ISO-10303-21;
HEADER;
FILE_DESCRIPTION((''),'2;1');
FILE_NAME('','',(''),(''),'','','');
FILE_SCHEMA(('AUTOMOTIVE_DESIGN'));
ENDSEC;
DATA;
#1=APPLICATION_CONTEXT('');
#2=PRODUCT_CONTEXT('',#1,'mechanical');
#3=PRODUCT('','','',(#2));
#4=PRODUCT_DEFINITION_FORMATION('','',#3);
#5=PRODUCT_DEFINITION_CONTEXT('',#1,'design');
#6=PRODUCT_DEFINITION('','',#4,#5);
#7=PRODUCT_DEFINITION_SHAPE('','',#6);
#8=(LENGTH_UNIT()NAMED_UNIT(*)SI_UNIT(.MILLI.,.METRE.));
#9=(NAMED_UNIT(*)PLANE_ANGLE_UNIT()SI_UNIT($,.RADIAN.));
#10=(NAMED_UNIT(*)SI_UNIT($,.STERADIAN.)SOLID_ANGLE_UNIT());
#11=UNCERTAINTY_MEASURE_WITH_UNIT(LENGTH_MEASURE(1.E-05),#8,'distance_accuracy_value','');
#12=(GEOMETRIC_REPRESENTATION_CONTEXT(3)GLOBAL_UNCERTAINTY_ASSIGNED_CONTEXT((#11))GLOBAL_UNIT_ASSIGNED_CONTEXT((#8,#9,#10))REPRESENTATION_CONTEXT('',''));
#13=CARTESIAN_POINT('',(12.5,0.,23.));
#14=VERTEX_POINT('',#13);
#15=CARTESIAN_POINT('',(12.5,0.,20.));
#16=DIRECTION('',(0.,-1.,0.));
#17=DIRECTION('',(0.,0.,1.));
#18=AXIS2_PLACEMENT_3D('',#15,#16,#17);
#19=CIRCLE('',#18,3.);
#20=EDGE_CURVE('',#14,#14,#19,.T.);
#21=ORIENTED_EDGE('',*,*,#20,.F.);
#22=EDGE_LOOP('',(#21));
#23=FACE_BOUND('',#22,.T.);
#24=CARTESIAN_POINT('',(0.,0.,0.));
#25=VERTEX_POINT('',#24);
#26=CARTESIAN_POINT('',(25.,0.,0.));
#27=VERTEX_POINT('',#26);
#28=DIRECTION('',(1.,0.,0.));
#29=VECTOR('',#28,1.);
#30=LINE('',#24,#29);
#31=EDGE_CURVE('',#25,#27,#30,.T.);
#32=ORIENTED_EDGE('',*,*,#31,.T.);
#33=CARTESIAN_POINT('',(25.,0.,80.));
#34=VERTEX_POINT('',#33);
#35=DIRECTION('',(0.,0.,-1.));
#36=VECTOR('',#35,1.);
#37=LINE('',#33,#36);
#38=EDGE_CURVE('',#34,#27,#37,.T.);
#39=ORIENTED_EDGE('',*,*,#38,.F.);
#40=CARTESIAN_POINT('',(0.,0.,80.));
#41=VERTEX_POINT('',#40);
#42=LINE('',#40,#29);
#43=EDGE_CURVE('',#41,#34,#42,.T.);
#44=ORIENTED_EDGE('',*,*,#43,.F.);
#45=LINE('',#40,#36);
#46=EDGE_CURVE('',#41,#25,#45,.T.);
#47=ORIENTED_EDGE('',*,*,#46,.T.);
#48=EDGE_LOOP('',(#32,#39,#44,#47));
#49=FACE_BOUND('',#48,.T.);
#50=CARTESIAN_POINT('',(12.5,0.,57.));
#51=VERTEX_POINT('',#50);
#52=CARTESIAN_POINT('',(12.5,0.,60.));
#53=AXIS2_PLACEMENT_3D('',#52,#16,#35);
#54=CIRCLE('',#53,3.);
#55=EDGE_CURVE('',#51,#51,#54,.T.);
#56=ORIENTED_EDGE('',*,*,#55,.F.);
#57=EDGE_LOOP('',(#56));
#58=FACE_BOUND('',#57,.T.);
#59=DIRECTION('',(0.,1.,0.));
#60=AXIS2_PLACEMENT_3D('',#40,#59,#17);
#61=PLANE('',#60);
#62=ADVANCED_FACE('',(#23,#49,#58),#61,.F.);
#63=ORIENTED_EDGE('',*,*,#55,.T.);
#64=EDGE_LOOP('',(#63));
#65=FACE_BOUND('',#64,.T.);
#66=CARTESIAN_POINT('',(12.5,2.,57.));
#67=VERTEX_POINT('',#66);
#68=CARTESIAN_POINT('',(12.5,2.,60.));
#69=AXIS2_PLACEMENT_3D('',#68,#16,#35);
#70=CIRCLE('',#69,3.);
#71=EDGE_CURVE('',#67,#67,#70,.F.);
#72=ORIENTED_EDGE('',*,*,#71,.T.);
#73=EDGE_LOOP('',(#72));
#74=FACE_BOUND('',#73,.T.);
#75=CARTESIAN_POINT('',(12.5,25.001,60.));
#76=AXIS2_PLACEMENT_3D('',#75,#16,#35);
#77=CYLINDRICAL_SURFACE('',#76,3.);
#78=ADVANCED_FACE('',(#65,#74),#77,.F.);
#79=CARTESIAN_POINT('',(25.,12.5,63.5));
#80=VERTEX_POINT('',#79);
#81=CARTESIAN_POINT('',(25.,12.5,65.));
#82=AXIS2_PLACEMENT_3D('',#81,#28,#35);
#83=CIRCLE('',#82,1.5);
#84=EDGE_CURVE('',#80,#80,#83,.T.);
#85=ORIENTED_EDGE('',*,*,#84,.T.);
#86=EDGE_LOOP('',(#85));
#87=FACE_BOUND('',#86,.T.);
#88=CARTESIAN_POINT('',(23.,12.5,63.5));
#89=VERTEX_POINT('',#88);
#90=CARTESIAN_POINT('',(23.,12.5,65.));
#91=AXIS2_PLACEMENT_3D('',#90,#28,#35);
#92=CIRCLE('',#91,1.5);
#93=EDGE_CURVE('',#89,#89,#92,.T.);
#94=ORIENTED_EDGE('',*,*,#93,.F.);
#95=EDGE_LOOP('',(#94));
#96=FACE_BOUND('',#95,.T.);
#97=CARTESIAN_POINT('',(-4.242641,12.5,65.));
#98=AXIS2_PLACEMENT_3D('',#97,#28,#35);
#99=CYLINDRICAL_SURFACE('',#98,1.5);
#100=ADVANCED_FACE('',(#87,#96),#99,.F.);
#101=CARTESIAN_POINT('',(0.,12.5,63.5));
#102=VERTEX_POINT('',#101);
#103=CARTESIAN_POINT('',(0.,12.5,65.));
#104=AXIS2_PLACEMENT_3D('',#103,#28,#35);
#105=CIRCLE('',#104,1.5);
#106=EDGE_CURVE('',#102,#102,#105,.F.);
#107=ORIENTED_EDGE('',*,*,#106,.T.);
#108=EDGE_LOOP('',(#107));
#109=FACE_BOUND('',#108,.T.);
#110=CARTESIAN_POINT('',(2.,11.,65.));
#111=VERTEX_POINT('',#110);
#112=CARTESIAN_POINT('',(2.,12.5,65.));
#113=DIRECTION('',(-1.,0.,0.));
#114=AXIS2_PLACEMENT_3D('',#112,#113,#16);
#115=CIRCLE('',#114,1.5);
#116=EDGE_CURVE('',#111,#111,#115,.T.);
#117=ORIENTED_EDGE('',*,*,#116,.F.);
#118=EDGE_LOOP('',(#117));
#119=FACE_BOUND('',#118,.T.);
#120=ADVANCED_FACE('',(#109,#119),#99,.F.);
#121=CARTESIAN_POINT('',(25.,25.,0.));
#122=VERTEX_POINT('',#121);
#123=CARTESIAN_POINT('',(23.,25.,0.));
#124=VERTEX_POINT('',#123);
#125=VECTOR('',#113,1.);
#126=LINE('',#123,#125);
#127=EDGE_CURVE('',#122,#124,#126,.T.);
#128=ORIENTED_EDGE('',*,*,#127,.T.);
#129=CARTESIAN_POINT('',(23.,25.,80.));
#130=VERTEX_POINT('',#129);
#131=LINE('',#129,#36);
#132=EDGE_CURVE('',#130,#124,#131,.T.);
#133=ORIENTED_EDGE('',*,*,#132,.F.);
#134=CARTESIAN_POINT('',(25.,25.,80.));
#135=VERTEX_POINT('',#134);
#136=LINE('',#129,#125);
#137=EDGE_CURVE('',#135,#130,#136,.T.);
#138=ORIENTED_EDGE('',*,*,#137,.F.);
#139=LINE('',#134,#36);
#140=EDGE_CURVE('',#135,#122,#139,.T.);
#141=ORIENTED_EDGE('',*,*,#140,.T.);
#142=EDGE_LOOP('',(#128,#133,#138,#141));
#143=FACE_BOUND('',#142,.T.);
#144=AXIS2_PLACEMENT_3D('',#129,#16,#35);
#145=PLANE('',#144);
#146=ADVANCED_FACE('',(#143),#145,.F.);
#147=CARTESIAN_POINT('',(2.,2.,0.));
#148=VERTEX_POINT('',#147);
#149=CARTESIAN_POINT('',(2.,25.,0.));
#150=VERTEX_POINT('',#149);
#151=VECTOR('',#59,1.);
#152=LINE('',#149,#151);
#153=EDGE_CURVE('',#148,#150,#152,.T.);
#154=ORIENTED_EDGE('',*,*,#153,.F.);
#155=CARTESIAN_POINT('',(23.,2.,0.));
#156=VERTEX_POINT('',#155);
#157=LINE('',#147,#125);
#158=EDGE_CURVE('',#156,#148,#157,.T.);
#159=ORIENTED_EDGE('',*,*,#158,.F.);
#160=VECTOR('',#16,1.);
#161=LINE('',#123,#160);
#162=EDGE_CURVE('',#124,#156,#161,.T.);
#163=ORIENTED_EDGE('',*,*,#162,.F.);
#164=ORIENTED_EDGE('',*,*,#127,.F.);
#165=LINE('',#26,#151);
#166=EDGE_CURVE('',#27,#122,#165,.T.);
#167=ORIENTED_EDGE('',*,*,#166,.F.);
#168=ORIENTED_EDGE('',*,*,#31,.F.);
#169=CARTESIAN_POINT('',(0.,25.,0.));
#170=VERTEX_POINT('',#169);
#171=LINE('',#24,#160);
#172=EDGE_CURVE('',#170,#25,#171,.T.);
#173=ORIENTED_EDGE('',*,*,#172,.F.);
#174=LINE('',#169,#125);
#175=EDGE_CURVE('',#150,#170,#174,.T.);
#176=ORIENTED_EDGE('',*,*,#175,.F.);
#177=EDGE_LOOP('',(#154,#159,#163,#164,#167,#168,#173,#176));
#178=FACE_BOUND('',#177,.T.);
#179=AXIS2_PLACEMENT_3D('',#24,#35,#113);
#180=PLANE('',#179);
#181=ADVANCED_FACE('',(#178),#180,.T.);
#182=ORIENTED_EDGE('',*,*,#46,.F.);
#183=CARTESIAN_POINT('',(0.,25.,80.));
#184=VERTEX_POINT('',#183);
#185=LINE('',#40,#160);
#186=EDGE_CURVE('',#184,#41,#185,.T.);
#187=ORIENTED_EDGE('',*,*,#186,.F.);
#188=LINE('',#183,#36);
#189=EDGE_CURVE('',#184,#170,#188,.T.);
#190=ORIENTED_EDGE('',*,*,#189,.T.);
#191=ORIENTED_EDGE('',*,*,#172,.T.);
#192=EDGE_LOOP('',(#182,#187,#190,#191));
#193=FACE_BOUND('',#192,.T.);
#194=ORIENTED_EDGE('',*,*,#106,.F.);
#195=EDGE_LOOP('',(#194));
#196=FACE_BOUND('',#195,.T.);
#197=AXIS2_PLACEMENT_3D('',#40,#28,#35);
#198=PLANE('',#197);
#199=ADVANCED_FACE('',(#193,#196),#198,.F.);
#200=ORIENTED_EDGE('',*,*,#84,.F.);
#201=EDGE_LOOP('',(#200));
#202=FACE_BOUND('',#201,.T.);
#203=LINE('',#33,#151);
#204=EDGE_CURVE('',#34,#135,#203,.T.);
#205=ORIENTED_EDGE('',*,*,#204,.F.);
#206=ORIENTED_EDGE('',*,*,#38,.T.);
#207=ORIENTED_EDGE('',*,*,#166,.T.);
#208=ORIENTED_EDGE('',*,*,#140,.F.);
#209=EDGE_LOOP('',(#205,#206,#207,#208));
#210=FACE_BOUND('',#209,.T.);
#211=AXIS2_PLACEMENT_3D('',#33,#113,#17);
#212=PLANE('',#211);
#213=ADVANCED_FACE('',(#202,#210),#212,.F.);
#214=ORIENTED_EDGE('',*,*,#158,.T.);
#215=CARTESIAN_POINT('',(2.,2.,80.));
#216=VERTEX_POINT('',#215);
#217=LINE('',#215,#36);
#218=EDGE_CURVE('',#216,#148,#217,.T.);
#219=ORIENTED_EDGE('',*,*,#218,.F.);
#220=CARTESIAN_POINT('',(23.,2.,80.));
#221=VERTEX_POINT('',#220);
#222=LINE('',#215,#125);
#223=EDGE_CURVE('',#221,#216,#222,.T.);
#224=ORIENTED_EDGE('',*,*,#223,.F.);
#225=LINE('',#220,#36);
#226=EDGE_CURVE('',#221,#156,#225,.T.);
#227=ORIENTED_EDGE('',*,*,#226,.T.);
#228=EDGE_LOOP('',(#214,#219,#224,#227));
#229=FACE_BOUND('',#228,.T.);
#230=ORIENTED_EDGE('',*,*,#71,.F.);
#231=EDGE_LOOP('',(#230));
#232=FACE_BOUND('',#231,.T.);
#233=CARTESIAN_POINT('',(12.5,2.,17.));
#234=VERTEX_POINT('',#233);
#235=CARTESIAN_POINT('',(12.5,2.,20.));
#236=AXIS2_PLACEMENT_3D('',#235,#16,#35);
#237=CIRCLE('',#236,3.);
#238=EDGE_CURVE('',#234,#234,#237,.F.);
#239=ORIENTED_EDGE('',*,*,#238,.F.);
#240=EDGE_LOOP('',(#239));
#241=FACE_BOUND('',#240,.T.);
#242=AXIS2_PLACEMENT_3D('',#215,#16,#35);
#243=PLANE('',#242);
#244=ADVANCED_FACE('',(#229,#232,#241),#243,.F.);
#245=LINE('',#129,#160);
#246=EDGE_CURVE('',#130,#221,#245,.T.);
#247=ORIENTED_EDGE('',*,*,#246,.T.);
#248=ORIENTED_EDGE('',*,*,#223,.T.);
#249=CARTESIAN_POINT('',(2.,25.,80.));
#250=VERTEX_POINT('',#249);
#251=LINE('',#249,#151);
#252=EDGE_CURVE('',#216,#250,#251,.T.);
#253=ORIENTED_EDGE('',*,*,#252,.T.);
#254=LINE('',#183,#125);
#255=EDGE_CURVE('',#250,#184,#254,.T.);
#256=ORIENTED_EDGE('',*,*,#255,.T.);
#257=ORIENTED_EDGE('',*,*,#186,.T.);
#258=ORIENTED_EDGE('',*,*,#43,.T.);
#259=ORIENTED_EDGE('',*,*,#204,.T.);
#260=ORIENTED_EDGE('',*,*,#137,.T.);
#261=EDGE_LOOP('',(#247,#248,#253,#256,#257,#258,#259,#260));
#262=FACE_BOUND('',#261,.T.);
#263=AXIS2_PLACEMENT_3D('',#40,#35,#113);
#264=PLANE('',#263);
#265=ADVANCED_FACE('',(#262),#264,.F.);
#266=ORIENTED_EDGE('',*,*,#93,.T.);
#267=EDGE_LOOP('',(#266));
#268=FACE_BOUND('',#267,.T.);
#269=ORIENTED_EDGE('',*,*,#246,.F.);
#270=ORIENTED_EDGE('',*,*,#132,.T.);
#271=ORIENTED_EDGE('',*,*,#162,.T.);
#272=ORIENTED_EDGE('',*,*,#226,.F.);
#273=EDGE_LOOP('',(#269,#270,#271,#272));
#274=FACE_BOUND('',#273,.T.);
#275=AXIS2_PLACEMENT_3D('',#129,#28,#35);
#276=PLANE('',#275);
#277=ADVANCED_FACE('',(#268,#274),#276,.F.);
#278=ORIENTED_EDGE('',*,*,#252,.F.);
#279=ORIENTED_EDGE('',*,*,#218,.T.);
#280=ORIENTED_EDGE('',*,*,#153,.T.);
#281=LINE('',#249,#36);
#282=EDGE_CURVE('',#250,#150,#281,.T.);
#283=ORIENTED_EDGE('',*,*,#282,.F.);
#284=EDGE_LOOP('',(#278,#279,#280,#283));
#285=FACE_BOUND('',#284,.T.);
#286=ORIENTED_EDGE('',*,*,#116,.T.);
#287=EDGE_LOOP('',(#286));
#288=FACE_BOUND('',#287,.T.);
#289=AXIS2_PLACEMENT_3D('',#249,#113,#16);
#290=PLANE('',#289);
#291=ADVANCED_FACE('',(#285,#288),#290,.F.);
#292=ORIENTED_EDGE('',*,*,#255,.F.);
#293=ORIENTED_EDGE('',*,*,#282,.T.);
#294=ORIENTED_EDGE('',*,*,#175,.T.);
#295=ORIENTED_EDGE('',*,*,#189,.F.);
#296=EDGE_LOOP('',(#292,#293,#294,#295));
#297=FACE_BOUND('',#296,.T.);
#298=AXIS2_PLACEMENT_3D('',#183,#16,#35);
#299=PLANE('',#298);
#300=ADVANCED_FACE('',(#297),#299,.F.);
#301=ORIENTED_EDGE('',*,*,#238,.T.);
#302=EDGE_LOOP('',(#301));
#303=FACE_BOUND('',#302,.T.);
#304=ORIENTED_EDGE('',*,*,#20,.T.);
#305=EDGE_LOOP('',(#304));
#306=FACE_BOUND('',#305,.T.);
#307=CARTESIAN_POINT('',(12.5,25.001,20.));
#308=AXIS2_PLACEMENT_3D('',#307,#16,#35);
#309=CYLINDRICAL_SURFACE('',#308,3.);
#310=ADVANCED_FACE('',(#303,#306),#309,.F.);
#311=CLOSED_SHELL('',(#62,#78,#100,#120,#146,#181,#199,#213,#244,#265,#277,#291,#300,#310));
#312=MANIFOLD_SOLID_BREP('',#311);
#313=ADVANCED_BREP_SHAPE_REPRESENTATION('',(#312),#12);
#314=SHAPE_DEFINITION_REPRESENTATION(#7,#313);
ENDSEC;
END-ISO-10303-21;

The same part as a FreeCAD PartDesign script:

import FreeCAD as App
import Part
import Sketcher
from FreeCAD import Vector

doc = App.newDocument("Part")
body = doc.addObject("PartDesign::Body", "Body")

sketch1 = body.newObject("Sketcher::SketchObject", "Sketch")
sketch1.AttachmentSupport = (doc.getObject("XY_Plane"), [""])
sketch1.MapMode = "FlatFace"
sketch1.addGeometry([
    Part.LineSegment(Vector(25, 25, 0), Vector(23, 25, 0)),
    Part.LineSegment(Vector(23, 25, 0), Vector(23, 2, 0)),
    Part.LineSegment(Vector(23, 2, 0), Vector(2, 2, 0)),
    Part.LineSegment(Vector(2, 2, 0), Vector(2, 25, 0)),
    Part.LineSegment(Vector(2, 25, 0), Vector(0, 25, 0)),
    Part.LineSegment(Vector(0, 25, 0), Vector(0, 0, 0)),
    Part.LineSegment(Vector(0, 0, 0), Vector(25, 0, 0)),
    Part.LineSegment(Vector(25, 0, 0), Vector(25, 25, 0)),
], False)
sketch1.addConstraint([
    Sketcher.Constraint("Coincident", 0, 2, 1, 1),
    Sketcher.Constraint("Coincident", 1, 2, 2, 1),
    Sketcher.Constraint("Coincident", 2, 2, 3, 1),
    Sketcher.Constraint("Coincident", 3, 2, 4, 1),
    Sketcher.Constraint("Coincident", 4, 2, 5, 1),
    Sketcher.Constraint("Coincident", 5, 2, 6, 1),
    Sketcher.Constraint("Coincident", 6, 2, 7, 1),
    Sketcher.Constraint("Coincident", 7, 2, 0, 1),
    Sketcher.Constraint("Horizontal", 0),
    Sketcher.Constraint("Vertical", 1),
    Sketcher.Constraint("Horizontal", 2),
    Sketcher.Constraint("Vertical", 3),
    Sketcher.Constraint("Horizontal", 4),
    Sketcher.Constraint("Vertical", 5),
    Sketcher.Constraint("Horizontal", 6),
    Sketcher.Constraint("Vertical", 7),
    Sketcher.Constraint("Coincident", 5, 2, -1, 1),
    Sketcher.Constraint("Horizontal", 0, 2, 3, 2),
    Sketcher.Constraint("Equal", 0, 4),
    Sketcher.Constraint("Equal", 6, 5),
    Sketcher.Constraint("DistanceX", 0, 2, 0, 1, 2.0),
    Sketcher.Constraint("DistanceX", 2, 2, 2, 1, 21.0),
    Sketcher.Constraint("DistanceY", 1, 2, 1, 1, 23.0),
])
pad1 = body.newObject("PartDesign::Pad", "Pad")
pad1.Profile = sketch1
pad1.Length = 80

sketch2 = body.newObject("Sketcher::SketchObject", "Sketch001")
sketch2.AttachmentSupport = (doc.getObject("YZ_Plane"), [""])
sketch2.MapMode = "FlatFace"
sketch2.AttachmentOffset = App.Placement(Vector(0, 0, 25), App.Rotation())
sketch2.addGeometry(Part.Circle(Vector(12.5, 65, 0), Vector(0, 0, 1), 1.5), False)
sketch2.addConstraint([
    Sketcher.Constraint("Diameter", 0, 3.0),
    Sketcher.Constraint("DistanceY", -1, 1, 0, 3, 65.0),
    Sketcher.Constraint("DistanceX", -1, 1, 0, 3, 12.5),
])
pocket1 = body.newObject("PartDesign::Pocket", "Pocket")
pocket1.Profile = sketch2
pocket1.Length = 25

sketch3 = body.newObject("Sketcher::SketchObject", "Sketch002")
sketch3.AttachmentSupport = (doc.getObject("XZ_Plane"), [""])
sketch3.MapMode = "FlatFace"
sketch3.addGeometry(Part.Circle(Vector(12.5, 60, 0), Vector(0, 0, 1), 3), False)
sketch3.addConstraint([
    Sketcher.Constraint("Diameter", 0, 6.0),
    Sketcher.Constraint("DistanceY", -1, 1, 0, 3, 60.0),
    Sketcher.Constraint("DistanceX", -1, 1, 0, 3, 12.5),
])
pocket2 = body.newObject("PartDesign::Pocket", "Pocket001")
pocket2.Profile = sketch3
pocket2.Type = "UpToFirst"

sketch4 = body.newObject("Sketcher::SketchObject", "Sketch003")
sketch4.AttachmentSupport = (doc.getObject("XZ_Plane"), [""])
sketch4.MapMode = "FlatFace"
sketch4.addGeometry(Part.Circle(Vector(12.5, 20, 0), Vector(0, 0, 1), 3), False)
sketch4.addConstraint([
    Sketcher.Constraint("Diameter", 0, 6.0),
    Sketcher.Constraint("DistanceY", -1, 1, 0, 3, 20.0),
    Sketcher.Constraint("DistanceX", -1, 1, 0, 3, 12.5),
])
pocket3 = body.newObject("PartDesign::Pocket", "Pocket002")
pocket3.Profile = sketch4
pocket3.Type = "UpToFirst"

doc.recompute()
